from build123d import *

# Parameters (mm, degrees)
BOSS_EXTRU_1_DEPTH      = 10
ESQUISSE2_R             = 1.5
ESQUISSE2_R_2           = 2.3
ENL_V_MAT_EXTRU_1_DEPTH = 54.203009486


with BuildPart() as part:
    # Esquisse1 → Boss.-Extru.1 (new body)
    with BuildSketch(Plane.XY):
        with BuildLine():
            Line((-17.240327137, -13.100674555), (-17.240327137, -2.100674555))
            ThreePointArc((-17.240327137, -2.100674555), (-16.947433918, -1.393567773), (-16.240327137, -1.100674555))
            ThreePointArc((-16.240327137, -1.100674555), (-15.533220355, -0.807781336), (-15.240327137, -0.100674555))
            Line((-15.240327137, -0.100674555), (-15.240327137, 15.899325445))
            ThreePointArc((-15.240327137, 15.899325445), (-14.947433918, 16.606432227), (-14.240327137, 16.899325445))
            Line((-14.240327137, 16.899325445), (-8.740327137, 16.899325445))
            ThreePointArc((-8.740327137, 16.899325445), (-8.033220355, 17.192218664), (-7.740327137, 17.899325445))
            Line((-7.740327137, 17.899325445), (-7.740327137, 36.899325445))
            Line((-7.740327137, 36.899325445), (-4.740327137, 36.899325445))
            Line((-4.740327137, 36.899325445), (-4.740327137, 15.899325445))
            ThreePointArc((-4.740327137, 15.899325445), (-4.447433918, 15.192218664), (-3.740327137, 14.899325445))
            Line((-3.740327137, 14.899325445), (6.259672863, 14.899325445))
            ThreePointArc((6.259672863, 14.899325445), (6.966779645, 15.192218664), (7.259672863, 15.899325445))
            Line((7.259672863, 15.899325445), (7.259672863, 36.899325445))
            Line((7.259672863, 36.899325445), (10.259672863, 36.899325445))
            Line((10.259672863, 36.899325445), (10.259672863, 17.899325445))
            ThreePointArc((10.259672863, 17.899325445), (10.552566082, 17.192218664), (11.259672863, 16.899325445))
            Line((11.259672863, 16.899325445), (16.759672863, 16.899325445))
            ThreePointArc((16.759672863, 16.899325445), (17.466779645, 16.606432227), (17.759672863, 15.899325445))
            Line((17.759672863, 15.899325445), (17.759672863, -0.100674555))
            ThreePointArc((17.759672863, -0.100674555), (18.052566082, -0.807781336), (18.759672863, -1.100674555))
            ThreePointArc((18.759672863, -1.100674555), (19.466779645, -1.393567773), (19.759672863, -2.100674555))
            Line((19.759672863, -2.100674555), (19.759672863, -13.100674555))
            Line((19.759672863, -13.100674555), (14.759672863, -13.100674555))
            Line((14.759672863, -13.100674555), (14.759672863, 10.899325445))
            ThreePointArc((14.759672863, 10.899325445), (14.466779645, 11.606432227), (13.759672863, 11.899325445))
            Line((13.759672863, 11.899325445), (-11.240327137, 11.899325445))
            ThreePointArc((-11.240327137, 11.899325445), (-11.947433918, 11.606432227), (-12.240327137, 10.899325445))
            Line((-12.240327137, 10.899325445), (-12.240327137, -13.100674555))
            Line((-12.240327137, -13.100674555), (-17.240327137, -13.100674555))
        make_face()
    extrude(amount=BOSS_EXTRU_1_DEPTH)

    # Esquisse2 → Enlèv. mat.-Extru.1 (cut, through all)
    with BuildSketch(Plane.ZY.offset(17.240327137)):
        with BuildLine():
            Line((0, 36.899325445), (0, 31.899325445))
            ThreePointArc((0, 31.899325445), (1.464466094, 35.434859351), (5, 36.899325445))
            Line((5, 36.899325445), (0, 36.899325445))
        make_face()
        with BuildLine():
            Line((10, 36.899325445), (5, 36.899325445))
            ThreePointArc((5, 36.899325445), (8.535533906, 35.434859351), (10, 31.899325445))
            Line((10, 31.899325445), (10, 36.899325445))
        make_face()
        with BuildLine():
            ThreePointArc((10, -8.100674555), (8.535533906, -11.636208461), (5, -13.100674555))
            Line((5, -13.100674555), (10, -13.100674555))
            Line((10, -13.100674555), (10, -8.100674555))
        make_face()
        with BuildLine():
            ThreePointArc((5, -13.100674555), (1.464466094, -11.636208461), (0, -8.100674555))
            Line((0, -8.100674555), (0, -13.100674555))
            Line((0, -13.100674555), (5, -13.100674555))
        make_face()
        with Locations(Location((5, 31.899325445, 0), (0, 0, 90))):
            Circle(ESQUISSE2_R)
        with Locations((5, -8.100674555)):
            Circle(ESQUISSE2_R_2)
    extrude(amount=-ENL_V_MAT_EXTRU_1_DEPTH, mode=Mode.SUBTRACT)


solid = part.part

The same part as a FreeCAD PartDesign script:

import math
import FreeCAD as App
import Part
import Sketcher
Q = App.Units.Quantity

doc = App.newDocument("Part")
params = doc.addObject("Spreadsheet::Sheet", "Params")
for row, (alias, value) in enumerate([
    ("sketch1_radius", "1 mm"),
    ("sketch1_width", "5 mm"),
    ("sketch1_width2", "25 mm"),
    ("sketch1_width3", "3 mm"),
    ("sketch1_width4", "10 mm"),
    ("pad1_length", "10 mm"),
    ("sketch2_diameter", "3 mm"),
    ("sketch2_radius", "5 mm"),
    ("sketch2_diameter2", "4.6 mm"),
], start=1):
    params.set(f"A{row}", alias)
    params.set(f"B{row}", "=" + value)
    params.setAlias(f"B{row}", alias)

body = doc.addObject("PartDesign::Body", "Body")

sketch1 = body.newObject("Sketcher::SketchObject", "Sketch")
sketch1.AttachmentSupport = (doc.getObject("XY_Plane"), [""])
sketch1.MapMode = "FlatFace"
sketch1.addGeometry(Part.LineSegment(App.Vector(-17.2, -2.1, 0), App.Vector(-17.2, -13.1, 0)), False)
sketch1.addGeometry(Part.LineSegment(App.Vector(-17.2, -13.1, 0), App.Vector(-12.2, -13.1, 0)), False)
sketch1.addGeometry(Part.LineSegment(App.Vector(-12.2, -13.1, 0), App.Vector(-12.2, 10.9, 0)), False)
sketch1.addGeometry(Part.ArcOfCircle(Part.Circle(App.Vector(-11.2, 10.9, 0), App.Vector(0, 0, 1), 1), math.radians(90), math.radians(180)), False)
sketch1.addGeometry(Part.LineSegment(App.Vector(-11.2, 11.9, 0), App.Vector(13.8, 11.9, 0)), False)
sketch1.addGeometry(Part.ArcOfCircle(Part.Circle(App.Vector(13.8, 10.9, 0), App.Vector(0, 0, 1), 1), math.radians(0), math.radians(90)), False)
sketch1.addGeometry(Part.LineSegment(App.Vector(14.8, 10.9, 0), App.Vector(14.8, -13.1, 0)), False)
sketch1.addGeometry(Part.LineSegment(App.Vector(14.8, -13.1, 0), App.Vector(19.8, -13.1, 0)), False)
sketch1.addGeometry(Part.LineSegment(App.Vector(19.8, -13.1, 0), App.Vector(19.8, -2.1, 0)), False)
sketch1.addGeometry(Part.ArcOfCircle(Part.Circle(App.Vector(18.8, -2.1, 0), App.Vector(0, 0, 1), 1), math.radians(0), math.radians(90)), False)
sketch1.addGeometry(Part.ArcOfCircle(Part.Circle(App.Vector(18.8, -0.1, 0), App.Vector(0, 0, 1), 1), math.radians(-180), math.radians(-90)), False)
sketch1.addGeometry(Part.LineSegment(App.Vector(17.8, -0.1, 0), App.Vector(17.8, 15.9, 0)), False)
sketch1.addGeometry(Part.ArcOfCircle(Part.Circle(App.Vector(16.8, 15.9, 0), App.Vector(0, 0, 1), 1), math.radians(0), math.radians(90)), False)
sketch1.addGeometry(Part.LineSegment(App.Vector(16.8, 16.9, 0), App.Vector(11.3, 16.9, 0)), False)
sketch1.addGeometry(Part.ArcOfCircle(Part.Circle(App.Vector(11.3, 17.9, 0), App.Vector(0, 0, 1), 1), math.radians(-180), math.radians(-90)), False)
sketch1.addGeometry(Part.LineSegment(App.Vector(10.3, 17.9, 0), App.Vector(10.3, 36.9, 0)), False)
sketch1.addGeometry(Part.LineSegment(App.Vector(10.3, 36.9, 0), App.Vector(7.3, 36.9, 0)), False)
sketch1.addGeometry(Part.LineSegment(App.Vector(7.3, 36.9, 0), App.Vector(7.3, 15.9, 0)), False)
sketch1.addGeometry(Part.ArcOfCircle(Part.Circle(App.Vector(6.3, 15.9, 0), App.Vector(0, 0, 1), 1), math.radians(-90), math.radians(0)), False)
sketch1.addGeometry(Part.LineSegment(App.Vector(6.3, 14.9, 0), App.Vector(-3.7, 14.9, 0)), False)
sketch1.addGeometry(Part.ArcOfCircle(Part.Circle(App.Vector(-3.7, 15.9, 0), App.Vector(0, 0, 1), 1), math.radians(-180), math.radians(-90)), False)
sketch1.addGeometry(Part.LineSegment(App.Vector(-4.7, 15.9, 0), App.Vector(-4.7, 36.9, 0)), False)
sketch1.addGeometry(Part.LineSegment(App.Vector(-4.7, 36.9, 0), App.Vector(-7.7, 36.9, 0)), False)
sketch1.addGeometry(Part.LineSegment(App.Vector(-7.7, 36.9, 0), App.Vector(-7.7, 17.9, 0)), False)
sketch1.addGeometry(Part.ArcOfCircle(Part.Circle(App.Vector(-8.7, 17.9, 0), App.Vector(0, 0, 1), 1), math.radians(-90), math.radians(0)), False)
sketch1.addGeometry(Part.LineSegment(App.Vector(-8.7, 16.9, 0), App.Vector(-14.2, 16.9, 0)), False)
sketch1.addGeometry(Part.ArcOfCircle(Part.Circle(App.Vector(-14.2, 15.9, 0), App.Vector(0, 0, 1), 1), math.radians(90), math.radians(180)), False)
sketch1.addGeometry(Part.LineSegment(App.Vector(-15.2, 15.9, 0), App.Vector(-15.2, -0.1, 0)), False)
sketch1.addGeometry(Part.ArcOfCircle(Part.Circle(App.Vector(-16.2, -0.1, 0), App.Vector(0, 0, 1), 1), math.radians(-90), math.radians(0)), False)
sketch1.addGeometry(Part.ArcOfCircle(Part.Circle(App.Vector(-16.2, -2.1, 0), App.Vector(0, 0, 1), 1), math.radians(90), math.radians(180)), False)
sketch1.addConstraint(Sketcher.Constraint("Coincident", 0, 2, 1, 1))
sketch1.addConstraint(Sketcher.Constraint("Coincident", 1, 2, 2, 1))
sketch1.addConstraint(Sketcher.Constraint("Tangent", 2, 2, 3, 2))
sketch1.addConstraint(Sketcher.Constraint("Tangent", 3, 1, 4, 1))
sketch1.addConstraint(Sketcher.Constraint("Tangent", 4, 2, 5, 2))
sketch1.addConstraint(Sketcher.Constraint("Tangent", 5, 1, 6, 1))
sketch1.addConstraint(Sketcher.Constraint("Coincident", 6, 2, 7, 1))
sketch1.addConstraint(Sketcher.Constraint("Coincident", 7, 2, 8, 1))
sketch1.addConstraint(Sketcher.Constraint("Tangent", 8, 2, 9, 1))
sketch1.addConstraint(Sketcher.Constraint("Tangent", 9, 2, 10, 2))
sketch1.addConstraint(Sketcher.Constraint("Tangent", 10, 1, 11, 1))
sketch1.addConstraint(Sketcher.Constraint("Tangent", 11, 2, 12, 1))
sketch1.addConstraint(Sketcher.Constraint("Tangent", 12, 2, 13, 1))
sketch1.addConstraint(Sketcher.Constraint("Tangent", 13, 2, 14, 2))
sketch1.addConstraint(Sketcher.Constraint("Tangent", 14, 1, 15, 1))
sketch1.addConstraint(Sketcher.Constraint("Coincident", 15, 2, 16, 1))
sketch1.addConstraint(Sketcher.Constraint("Coincident", 16, 2, 17, 1))
sketch1.addConstraint(Sketcher.Constraint("Tangent", 17, 2, 18, 2))
sketch1.addConstraint(Sketcher.Constraint("Tangent", 18, 1, 19, 1))
sketch1.addConstraint(Sketcher.Constraint("Tangent", 19, 2, 20, 2))
sketch1.addConstraint(Sketcher.Constraint("Tangent", 20, 1, 21, 1))
sketch1.addConstraint(Sketcher.Constraint("Coincident", 21, 2, 22, 1))
sketch1.addConstraint(Sketcher.Constraint("Coincident", 22, 2, 23, 1))
sketch1.addConstraint(Sketcher.Constraint("Tangent", 23, 2, 24, 2))
sketch1.addConstraint(Sketcher.Constraint("Tangent", 24, 1, 25, 1))
sketch1.addConstraint(Sketcher.Constraint("Tangent", 25, 2, 26, 1))
sketch1.addConstraint(Sketcher.Constraint("Tangent", 26, 2, 27, 1))
sketch1.addConstraint(Sketcher.Constraint("Tangent", 27, 2, 28, 2))
sketch1.addConstraint(Sketcher.Constraint("Tangent", 28, 1, 29, 1))
sketch1.addConstraint(Sketcher.Constraint("Tangent", 29, 2, 0, 1))
sketch1.addConstraint(Sketcher.Constraint("Vertical", 0))
sketch1.addConstraint(Sketcher.Constraint("Horizontal", 1))
sketch1.addConstraint(Sketcher.Constraint("Vertical", 2))
sketch1.addConstraint(Sketcher.Constraint("Horizontal", 4))
sketch1.addConstraint(Sketcher.Constraint("Vertical", 6))
sketch1.addConstraint(Sketcher.Constraint("Horizontal", 7))
sketch1.addConstraint(Sketcher.Constraint("Vertical", 8))
sketch1.addConstraint(Sketcher.Constraint("Vertical", 11))
sketch1.addConstraint(Sketcher.Constraint("Horizontal", 13))
sketch1.addConstraint(Sketcher.Constraint("Vertical", 15))
sketch1.addConstraint(Sketcher.Constraint("Horizontal", 16))
sketch1.addConstraint(Sketcher.Constraint("Vertical", 17))
sketch1.addConstraint(Sketcher.Constraint("Horizontal", 19))
sketch1.addConstraint(Sketcher.Constraint("Vertical", 21))
sketch1.addConstraint(Sketcher.Constraint("Horizontal", 22))
sketch1.addConstraint(Sketcher.Constraint("Vertical", 23))
sketch1.addConstraint(Sketcher.Constraint("Horizontal", 25))
sketch1.addConstraint(Sketcher.Constraint("Vertical", 27))
sketch1.addConstraint(Sketcher.Constraint("Equal", 3, 5))
sketch1.addConstraint(Sketcher.Constraint("Equal", 5, 9))
sketch1.addConstraint(Sketcher.Constraint("Equal", 9, 10))
sketch1.addConstraint(Sketcher.Constraint("Equal", 10, 12))
sketch1.addConstraint(Sketcher.Constraint("Equal", 12, 14))
sketch1.addConstraint(Sketcher.Constraint("Equal", 14, 18))
sketch1.addConstraint(Sketcher.Constraint("Equal", 18, 20))
sketch1.addConstraint(Sketcher.Constraint("Equal", 20, 24))
sketch1.addConstraint(Sketcher.Constraint("Equal", 24, 26))
sketch1.addConstraint(Sketcher.Constraint("Equal", 26, 28))
sketch1.addConstraint(Sketcher.Constraint("Equal", 28, 29))
sketch1.addConstraint(Sketcher.Constraint("Horizontal", 12, 3, 18, 3))
sketch1.addConstraint(Sketcher.Constraint("Horizontal", 14, 3, 24, 3))
sketch1.addConstraint(Sketcher.Constraint("Horizontal", 10, 3, 28, 3))
sketch1.addConstraint(Sketcher.Constraint("Horizontal", 1, 2, 6, 2))
sketch1.addConstraint(Sketcher.Constraint("Horizontal", 16, 2, 21, 2))
sketch1.addConstraint(Sketcher.Constraint("Vertical", 9, 3, 10, 3))
sketch1.addConstraint(Sketcher.Constraint("Vertical", 28, 3, 29, 3))
sketch1.addConstraint(Sketcher.Constraint("Equal", 1, 7))
sketch1.addConstraint(Sketcher.Constraint("Equal", 16, 22))
sketch1.addConstraint(Sketcher.Constraint("Equal", 13, 25))
sketch1.addConstraint(Sketcher.Constraint("Radius", 3, Q("1 mm")))
sketch1.addConstraint(Sketcher.Constraint("DistanceX", 1, 1, 1, 2, Q("5 mm")))
sketch1.addConstraint(Sketcher.Constraint("DistanceX", 4, 1, 4, 2, Q("25 mm")))
sketch1.addConstraint(Sketcher.Constraint("DistanceX", 16, 2, 16, 1, Q("3 mm")))
sketch1.addConstraint(Sketcher.Constraint("DistanceX", 19, 2, 19, 1, Q("10 mm")))
sketch1.addConstraint(Sketcher.Constraint("DistanceY", 0, 2, 0, 1, Q("11 mm")))
sketch1.addConstraint(Sketcher.Constraint("DistanceY", 2, 1, 2, 2, Q("24 mm")))
sketch1.addConstraint(Sketcher.Constraint("DistanceY", 11, 1, 11, 2, Q("16 mm")))
sketch1.addConstraint(Sketcher.Constraint("DistanceY", 15, 1, 15, 2, Q("19 mm")))
sketch1.addConstraint(Sketcher.Constraint("DistanceX", 3, 3, -1, 1, Q("11.240327 mm")))
sketch1.addConstraint(Sketcher.Constraint("DistanceY", -1, 1, 3, 3, Q("10.899325 mm")))
sketch1.setExpression("Constraints[69]", "Params.sketch1_radius")
sketch1.setExpression("Constraints[70]", "Params.sketch1_width")
sketch1.setExpression("Constraints[71]", "Params.sketch1_width2")
sketch1.setExpression("Constraints[72]", "Params.sketch1_width3")
sketch1.setExpression("Constraints[73]", "Params.sketch1_width4")
pad1 = body.newObject("PartDesign::Pad", "Pad")
pad1.Profile = sketch1
pad1.setExpression("Length", "Params.pad1_length")

sketch2 = body.newObject("Sketcher::SketchObject", "Sketch001")
sketch2.AttachmentSupport = (doc.getObject("YZ_Plane"), [""])
sketch2.MapMode = "FlatFace"
sketch2.AttachmentOffset = App.Placement(App.Vector(0, 0, -17.240327), App.Rotation())
sketch2.addGeometry(Part.LineSegment(App.Vector(36.9, 0, 0), App.Vector(31.9, 0, 0)), False)
sketch2.addGeometry(Part.ArcOfCircle(Part.Circle(App.Vector(31.9, 5, 0), App.Vector(0, 0, 1), 5), math.radians(-90), math.radians(0)), False)
sketch2.addGeometry(Part.LineSegment(App.Vector(36.9, 5, 0), App.Vector(36.9, 0, 0)), False)
sketch2.addGeometry(Part.LineSegment(App.Vector(36.9, 10, 0), App.Vector(36.9, 5, 0)), False)
sketch2.addGeometry(Part.ArcOfCircle(Part.Circle(App.Vector(31.9, 5, 0), App.Vector(0, 0, 1), 5), math.radians(0), math.radians(90)), False)
sketch2.addGeometry(Part.LineSegment(App.Vector(31.9, 10, 0), App.Vector(36.9, 10, 0)), False)
sketch2.addGeometry(Part.ArcOfCircle(Part.Circle(App.Vector(-8.1, 5, 0), App.Vector(0, 0, 1), 5), math.radians(90), math.radians(180)), False)
sketch2.addGeometry(Part.LineSegment(App.Vector(-13.1, 5, 0), App.Vector(-13.1, 10, 0)), False)
sketch2.addGeometry(Part.LineSegment(App.Vector(-13.1, 10, 0), App.Vector(-8.1, 10, 0)), False)
sketch2.addGeometry(Part.ArcOfCircle(Part.Circle(App.Vector(-8.1, 5, 0), App.Vector(0, 0, 1), 5), math.radians(180), math.radians(270)), False)
sketch2.addGeometry(Part.LineSegment(App.Vector(-8.1, 0, 0), App.Vector(-13.1, 0, 0)), False)
sketch2.addGeometry(Part.LineSegment(App.Vector(-13.1, 0, 0), App.Vector(-13.1, 5, 0)), False)
sketch2.addGeometry(Part.Circle(App.Vector(31.9, 5, 0), App.Vector(0, 0, 1), 1.5), False)
sketch2.addGeometry(Part.Circle(App.Vector(-8.1, 5, 0), App.Vector(0, 0, 1), 2.3), False)
sketch2.addConstraint(Sketcher.Constraint("Tangent", 0, 2, 1, 1))
sketch2.addConstraint(Sketcher.Constraint("Tangent", 1, 2, 2, 1))
sketch2.addConstraint(Sketcher.Constraint("Coincident", 2, 2, 0, 1))
sketch2.addConstraint(Sketcher.Constraint("Tangent", 3, 2, 4, 1))
sketch2.addConstraint(Sketcher.Constraint("Tangent", 4, 2, 5, 1))
sketch2.addConstraint(Sketcher.Constraint("Coincident", 5, 2, 3, 1))
sketch2.addConstraint(Sketcher.Constraint("Tangent", 6, 2, 7, 1))
sketch2.addConstraint(Sketcher.Constraint("Coincident", 7, 2, 8, 1))
sketch2.addConstraint(Sketcher.Constraint("Tangent", 8, 2, 6, 1))
sketch2.addConstraint(Sketcher.Constraint("Tangent", 9, 2, 10, 1))
sketch2.addConstraint(Sketcher.Constraint("Coincident", 10, 2, 11, 1))
sketch2.addConstraint(Sketcher.Constraint("Tangent", 11, 2, 9, 1))
sketch2.addConstraint(Sketcher.Constraint("Horizontal", 0))
sketch2.addConstraint(Sketcher.Constraint("Vertical", 2))
sketch2.addConstraint(Sketcher.Constraint("Vertical", 3))
sketch2.addConstraint(Sketcher.Constraint("Horizontal", 5))
sketch2.addConstraint(Sketcher.Constraint("Vertical", 7))
sketch2.addConstraint(Sketcher.Constraint("Horizontal", 8))
sketch2.addConstraint(Sketcher.Constraint("Horizontal", 10))
sketch2.addConstraint(Sketcher.Constraint("Vertical", 11))
sketch2.addConstraint(Sketcher.Constraint("Coincident", 4, 3, 1, 3))
sketch2.addConstraint(Sketcher.Constraint("Coincident", 9, 3, 6, 3))
sketch2.addConstraint(Sketcher.Constraint("Coincident", 12, 3, 1, 3))
sketch2.addConstraint(Sketcher.Constraint("Coincident", 13, 3, 6, 3))
sketch2.addConstraint(Sketcher.Constraint("Equal", 1, 4))
sketch2.addConstraint(Sketcher.Constraint("Equal", 4, 6))
sketch2.addConstraint(Sketcher.Constraint("Equal", 6, 9))
sketch2.addConstraint(Sketcher.Constraint("PointOnObject", 0, 2, -1))
sketch2.addConstraint(Sketcher.Constraint("PointOnObject", 9, 2, -1))
sketch2.addConstraint(Sketcher.Constraint("Diameter", 12, Q("3 mm")))
sketch2.addConstraint(Sketcher.Constraint("Radius", 1, Q("5 mm")))
sketch2.addConstraint(Sketcher.Constraint("Diameter", 13, Q("4.6 mm")))
sketch2.addConstraint(Sketcher.Constraint("DistanceX", 6, 3, 1, 3, Q("40 mm")))
sketch2.addConstraint(Sketcher.Constraint("DistanceX", -1, 1, 1, 3, Q("31.899325 mm")))
sketch2.setExpression("Constraints[29]", "Params.sketch2_diameter")
sketch2.setExpression("Constraints[30]", "Params.sketch2_radius")
sketch2.setExpression("Constraints[31]", "Params.sketch2_diameter2")
pocket1 = body.newObject("PartDesign::Pocket", "Pocket")
pocket1.Profile = sketch2
pocket1.Type = "ThroughAll"
pocket1.Reversed = True

doc.recompute()
